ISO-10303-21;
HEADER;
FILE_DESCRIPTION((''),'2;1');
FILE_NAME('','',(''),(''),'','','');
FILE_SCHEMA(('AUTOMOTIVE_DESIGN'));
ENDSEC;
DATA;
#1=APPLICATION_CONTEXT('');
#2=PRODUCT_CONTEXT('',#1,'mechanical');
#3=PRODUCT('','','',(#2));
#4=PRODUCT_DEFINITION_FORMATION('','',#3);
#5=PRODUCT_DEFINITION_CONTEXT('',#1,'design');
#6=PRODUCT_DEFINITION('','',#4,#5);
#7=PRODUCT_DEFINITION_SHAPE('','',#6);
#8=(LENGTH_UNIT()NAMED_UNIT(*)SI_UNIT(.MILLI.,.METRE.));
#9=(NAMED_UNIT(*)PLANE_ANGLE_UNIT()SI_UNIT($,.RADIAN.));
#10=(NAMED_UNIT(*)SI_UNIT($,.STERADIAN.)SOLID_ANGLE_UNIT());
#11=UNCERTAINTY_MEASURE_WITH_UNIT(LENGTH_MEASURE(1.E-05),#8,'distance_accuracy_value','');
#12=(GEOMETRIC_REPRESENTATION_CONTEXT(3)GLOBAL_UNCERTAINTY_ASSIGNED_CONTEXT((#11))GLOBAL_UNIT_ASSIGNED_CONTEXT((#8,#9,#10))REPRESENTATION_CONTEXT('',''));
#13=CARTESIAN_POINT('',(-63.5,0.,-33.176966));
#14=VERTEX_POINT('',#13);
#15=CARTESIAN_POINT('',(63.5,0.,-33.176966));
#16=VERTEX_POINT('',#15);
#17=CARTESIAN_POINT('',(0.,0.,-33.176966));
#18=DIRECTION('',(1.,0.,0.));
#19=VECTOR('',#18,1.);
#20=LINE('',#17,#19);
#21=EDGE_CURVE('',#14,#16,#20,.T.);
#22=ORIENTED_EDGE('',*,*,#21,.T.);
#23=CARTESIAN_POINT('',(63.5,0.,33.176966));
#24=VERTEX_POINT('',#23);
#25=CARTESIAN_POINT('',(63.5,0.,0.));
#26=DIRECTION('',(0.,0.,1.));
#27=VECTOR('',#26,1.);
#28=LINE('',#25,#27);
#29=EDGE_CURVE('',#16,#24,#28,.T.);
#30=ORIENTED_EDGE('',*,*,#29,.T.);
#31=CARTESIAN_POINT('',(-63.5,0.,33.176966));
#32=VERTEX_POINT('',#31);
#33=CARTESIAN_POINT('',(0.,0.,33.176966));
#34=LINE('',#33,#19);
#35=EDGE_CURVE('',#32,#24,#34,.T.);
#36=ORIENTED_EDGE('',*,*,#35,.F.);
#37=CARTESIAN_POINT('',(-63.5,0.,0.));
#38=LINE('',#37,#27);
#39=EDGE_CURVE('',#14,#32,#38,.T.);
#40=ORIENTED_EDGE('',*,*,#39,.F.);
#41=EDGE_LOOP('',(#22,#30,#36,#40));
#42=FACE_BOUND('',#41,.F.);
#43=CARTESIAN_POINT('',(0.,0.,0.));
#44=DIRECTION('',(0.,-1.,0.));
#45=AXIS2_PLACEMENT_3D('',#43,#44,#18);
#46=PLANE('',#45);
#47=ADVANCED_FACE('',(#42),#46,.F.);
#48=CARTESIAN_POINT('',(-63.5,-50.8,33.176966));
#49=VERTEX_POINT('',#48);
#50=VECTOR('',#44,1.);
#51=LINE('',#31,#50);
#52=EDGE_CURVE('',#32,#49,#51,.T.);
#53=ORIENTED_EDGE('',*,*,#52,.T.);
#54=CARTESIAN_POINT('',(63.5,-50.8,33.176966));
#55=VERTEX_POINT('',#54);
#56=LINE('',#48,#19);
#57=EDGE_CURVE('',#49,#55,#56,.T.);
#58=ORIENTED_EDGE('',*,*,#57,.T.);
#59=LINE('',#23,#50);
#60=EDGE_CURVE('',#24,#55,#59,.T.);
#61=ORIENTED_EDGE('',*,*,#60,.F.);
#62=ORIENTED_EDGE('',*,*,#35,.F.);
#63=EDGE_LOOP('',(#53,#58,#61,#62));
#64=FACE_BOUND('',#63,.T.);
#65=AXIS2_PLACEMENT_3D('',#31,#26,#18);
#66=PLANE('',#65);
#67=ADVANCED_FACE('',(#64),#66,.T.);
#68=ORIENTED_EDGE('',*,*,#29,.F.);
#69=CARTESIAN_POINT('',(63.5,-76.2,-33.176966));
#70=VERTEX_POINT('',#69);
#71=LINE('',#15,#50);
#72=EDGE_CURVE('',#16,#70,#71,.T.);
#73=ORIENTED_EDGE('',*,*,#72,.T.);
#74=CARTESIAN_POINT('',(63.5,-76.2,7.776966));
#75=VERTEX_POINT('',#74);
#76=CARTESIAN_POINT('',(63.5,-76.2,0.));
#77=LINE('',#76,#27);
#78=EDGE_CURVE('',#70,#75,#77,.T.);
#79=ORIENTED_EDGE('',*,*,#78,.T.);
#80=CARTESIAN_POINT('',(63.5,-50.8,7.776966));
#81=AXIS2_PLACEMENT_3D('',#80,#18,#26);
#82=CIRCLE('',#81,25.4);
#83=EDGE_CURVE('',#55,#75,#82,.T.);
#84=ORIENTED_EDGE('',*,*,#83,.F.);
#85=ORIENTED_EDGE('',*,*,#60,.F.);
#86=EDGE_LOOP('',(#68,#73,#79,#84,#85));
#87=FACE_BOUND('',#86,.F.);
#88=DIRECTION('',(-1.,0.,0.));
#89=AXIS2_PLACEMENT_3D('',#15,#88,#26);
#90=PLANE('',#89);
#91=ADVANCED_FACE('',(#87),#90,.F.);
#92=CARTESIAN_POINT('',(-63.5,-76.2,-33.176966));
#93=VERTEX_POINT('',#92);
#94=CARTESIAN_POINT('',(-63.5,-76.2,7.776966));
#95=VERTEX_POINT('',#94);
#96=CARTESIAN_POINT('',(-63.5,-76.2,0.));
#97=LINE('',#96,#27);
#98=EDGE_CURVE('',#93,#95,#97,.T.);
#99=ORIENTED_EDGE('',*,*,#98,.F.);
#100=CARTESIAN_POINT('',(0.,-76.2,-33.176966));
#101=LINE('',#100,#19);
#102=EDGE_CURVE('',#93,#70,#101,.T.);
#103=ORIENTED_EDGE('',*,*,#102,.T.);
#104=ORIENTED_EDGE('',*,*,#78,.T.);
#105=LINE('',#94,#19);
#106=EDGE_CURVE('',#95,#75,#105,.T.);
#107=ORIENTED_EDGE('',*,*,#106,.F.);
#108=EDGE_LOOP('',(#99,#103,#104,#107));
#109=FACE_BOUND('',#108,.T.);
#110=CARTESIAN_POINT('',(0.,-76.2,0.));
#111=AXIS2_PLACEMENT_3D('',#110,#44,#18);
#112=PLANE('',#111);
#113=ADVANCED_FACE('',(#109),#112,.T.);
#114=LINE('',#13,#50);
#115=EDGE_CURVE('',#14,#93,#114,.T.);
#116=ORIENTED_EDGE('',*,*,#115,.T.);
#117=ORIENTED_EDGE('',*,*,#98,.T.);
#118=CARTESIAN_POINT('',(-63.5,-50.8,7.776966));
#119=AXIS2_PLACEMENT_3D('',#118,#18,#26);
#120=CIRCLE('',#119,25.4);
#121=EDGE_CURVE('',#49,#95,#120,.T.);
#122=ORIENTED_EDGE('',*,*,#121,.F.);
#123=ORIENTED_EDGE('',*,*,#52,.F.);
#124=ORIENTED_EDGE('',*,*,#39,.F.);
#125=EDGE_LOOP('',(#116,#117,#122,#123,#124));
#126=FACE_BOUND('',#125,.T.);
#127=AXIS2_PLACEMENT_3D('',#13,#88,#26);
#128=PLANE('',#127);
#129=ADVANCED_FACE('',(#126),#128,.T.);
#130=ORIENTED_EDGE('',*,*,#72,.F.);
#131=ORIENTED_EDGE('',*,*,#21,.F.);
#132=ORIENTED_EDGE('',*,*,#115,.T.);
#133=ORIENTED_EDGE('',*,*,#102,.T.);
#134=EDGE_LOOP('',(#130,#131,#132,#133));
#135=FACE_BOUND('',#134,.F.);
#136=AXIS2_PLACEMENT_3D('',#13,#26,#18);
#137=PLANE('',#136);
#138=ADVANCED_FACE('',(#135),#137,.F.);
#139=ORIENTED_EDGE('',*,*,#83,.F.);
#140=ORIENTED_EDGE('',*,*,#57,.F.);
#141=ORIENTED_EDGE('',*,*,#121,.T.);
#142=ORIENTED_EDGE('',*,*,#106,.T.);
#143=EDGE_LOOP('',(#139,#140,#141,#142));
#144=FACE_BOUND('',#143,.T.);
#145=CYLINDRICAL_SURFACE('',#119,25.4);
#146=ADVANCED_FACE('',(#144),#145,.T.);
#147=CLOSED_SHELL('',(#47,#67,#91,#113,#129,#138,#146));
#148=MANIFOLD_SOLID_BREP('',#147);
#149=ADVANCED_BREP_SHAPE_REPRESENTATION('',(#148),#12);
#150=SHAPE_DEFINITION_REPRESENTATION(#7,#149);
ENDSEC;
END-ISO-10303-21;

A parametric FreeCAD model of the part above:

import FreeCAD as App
import Part
import Sketcher
from FreeCAD import Vector
Q = App.Units.Quantity


def edges_at(feature, points):
    """Names of the edges that pass closest to the given points."""
    edges = feature.Shape.Edges
    near = lambda p: min(range(len(edges)), key=lambda i: edges[i].distToShape(Part.Vertex(*p))[0])
    return sorted({f"Edge{near(p) + 1}" for p in points})

doc = App.newDocument("Part")
params = doc.addObject("Spreadsheet::Sheet", "Params")
for row, (alias, value) in enumerate([
    ("sketch1_width", "5 in"),
    ("pad1_length", "3 in"),
    ("fillet_radius", "1 in"),
], start=1):
    params.set(f"A{row}", alias)
    params.set(f"B{row}", "=" + value)
    params.setAlias(f"B{row}", alias)

body = doc.addObject("PartDesign::Body", "Body")

# Sketch on XZ plane
sketch1 = body.newObject("Sketcher::SketchObject", "Sketch")
sketch1.AttachmentSupport = (doc.getObject("XZ_Plane"), [""])
sketch1.MapMode = "FlatFace"
sketch1.addGeometry([
    Part.LineSegment(Vector(-64, 33, 0), Vector(-64, -33, 0)),
    Part.LineSegment(Vector(-64, -33, 0), Vector(64, -33, 0)),
    Part.LineSegment(Vector(64, -33, 0), Vector(64, 33, 0)),
    Part.LineSegment(Vector(64, 33, 0), Vector(-64, 33, 0)),
], False)
sketch1.addConstraint([
    Sketcher.Constraint("Coincident", 0, 2, 1, 1),
    Sketcher.Constraint("Coincident", 1, 2, 2, 1),
    Sketcher.Constraint("Coincident", 2, 2, 3, 1),
    Sketcher.Constraint("Coincident", 3, 2, 0, 1),
    Sketcher.Constraint("Vertical", 0),
    Sketcher.Constraint("Horizontal", 1),
    Sketcher.Constraint("Vertical", 2),
    Sketcher.Constraint("Horizontal", 3),
    Sketcher.Constraint("Symmetric", 0, 2, 2, 2, -1, 1),
    Sketcher.Constraint("DistanceX", 1, 1, 1, 2, Q("5 in")),
    Sketcher.Constraint("DistanceY", 0, 2, 0, 1, Q("66.353932 mm")),
])
sketch1.setExpression("Constraints[9]", "Params.sketch1_width")
pad1 = body.newObject("PartDesign::Pad", "Pad")
pad1.Profile = sketch1
pad1.setExpression("Length", "Params.pad1_length")
doc.recompute()

fillet = body.newObject("PartDesign::Fillet", "Fillet")
fillet.Base = (pad1, edges_at(pad1, [(0, -76.2, 33.177)]))
fillet.setExpression("Radius", "Params.fillet_radius")

doc.recompute()
